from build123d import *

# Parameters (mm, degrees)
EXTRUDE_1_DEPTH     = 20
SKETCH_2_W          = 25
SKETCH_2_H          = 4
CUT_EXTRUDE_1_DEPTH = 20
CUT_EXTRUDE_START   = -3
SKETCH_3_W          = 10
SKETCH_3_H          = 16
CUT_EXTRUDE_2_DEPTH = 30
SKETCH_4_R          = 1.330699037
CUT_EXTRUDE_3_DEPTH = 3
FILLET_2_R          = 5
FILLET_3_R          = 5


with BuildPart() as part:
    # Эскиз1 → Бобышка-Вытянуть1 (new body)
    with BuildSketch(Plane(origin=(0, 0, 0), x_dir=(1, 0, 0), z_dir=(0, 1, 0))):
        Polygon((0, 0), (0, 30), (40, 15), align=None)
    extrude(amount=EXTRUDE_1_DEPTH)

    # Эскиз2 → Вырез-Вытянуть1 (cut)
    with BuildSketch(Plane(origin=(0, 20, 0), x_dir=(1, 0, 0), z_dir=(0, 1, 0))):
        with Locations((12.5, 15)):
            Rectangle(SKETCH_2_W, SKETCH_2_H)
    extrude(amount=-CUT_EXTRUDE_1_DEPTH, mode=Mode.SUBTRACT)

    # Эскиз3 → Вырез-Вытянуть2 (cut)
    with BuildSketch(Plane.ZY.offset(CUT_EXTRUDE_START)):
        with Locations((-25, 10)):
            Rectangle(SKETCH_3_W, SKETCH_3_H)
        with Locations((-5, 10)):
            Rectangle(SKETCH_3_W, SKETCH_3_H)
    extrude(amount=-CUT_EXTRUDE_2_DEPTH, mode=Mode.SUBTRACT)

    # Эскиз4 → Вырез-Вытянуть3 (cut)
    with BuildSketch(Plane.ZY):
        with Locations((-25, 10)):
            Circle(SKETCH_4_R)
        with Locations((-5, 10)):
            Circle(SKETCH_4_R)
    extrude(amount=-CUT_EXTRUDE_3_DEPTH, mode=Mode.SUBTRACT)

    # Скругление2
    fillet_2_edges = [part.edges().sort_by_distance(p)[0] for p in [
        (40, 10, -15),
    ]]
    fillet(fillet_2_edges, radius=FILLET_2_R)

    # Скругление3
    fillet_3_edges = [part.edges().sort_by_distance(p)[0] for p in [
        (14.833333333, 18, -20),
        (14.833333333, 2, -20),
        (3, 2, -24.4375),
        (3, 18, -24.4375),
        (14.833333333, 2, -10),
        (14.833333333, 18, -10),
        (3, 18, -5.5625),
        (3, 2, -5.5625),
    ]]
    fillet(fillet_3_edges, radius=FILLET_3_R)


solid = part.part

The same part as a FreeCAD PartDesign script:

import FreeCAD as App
import Part
import Sketcher


def edges_at(feature, points):
    """Names of the edges that pass closest to the given points."""
    edges = feature.Shape.Edges
    near = lambda p: min(range(len(edges)), key=lambda i: edges[i].distToShape(Part.Vertex(*p))[0])
    return sorted({f"Edge{near(p) + 1}" for p in points})


def add_polygon(sketch, points):
    """Adds a closed chain of lines whose ends are joined by coincident constraints."""
    first, n = sketch.GeometryCount, len(points)
    for a, b in zip(points, points[1:] + points[:1]):
        sketch.addGeometry(Part.LineSegment(App.Vector(*a, 0), App.Vector(*b, 0)), False)
    for i in range(n):
        sketch.addConstraint(Sketcher.Constraint("Coincident", first + i, 2, first + (i + 1) % n, 1))

doc = App.newDocument("Part")
params = doc.addObject("Spreadsheet::Sheet", "Params")
for row, (alias, value) in enumerate([
    ("sketch1_height", "30 mm"),
    ("pad1_length", "20 mm"),
    ("sketch2_width", "25 mm"),
    ("sketch2_height", "4 mm"),
    ("pocket1_length", "20 mm"),
    ("sketch3_width", "16 mm"),
    ("sketch3_height", "10 mm"),
    ("pocket2_length", "30 mm"),
    ("pocket3_length", "3 mm"),
    ("fillet_radius", "5 mm"),
    ("fillet2_radius", "5 mm"),
], start=1):
    params.set(f"A{row}", alias)
    params.set(f"B{row}", "=" + value)
    params.setAlias(f"B{row}", alias)

body = doc.addObject("PartDesign::Body", "Body")

sketch1 = body.newObject("Sketcher::SketchObject", "Sketch")
sketch1.AttachmentSupport = (doc.getObject("XZ_Plane"), [""])
sketch1.MapMode = "FlatFace"
add_polygon(sketch1, [(0, -30), (0, 0), (40, -15)])
sketch1.addConstraint([
    Sketcher.Constraint("Vertical", 0),
    Sketcher.Constraint("Coincident", 0, 2, -1, 1),
    Sketcher.Constraint("Equal", 1, 2),
    Sketcher.Constraint("DistanceY", 0, 1, 0, 2, 30.0),
    Sketcher.Constraint("DistanceX", -1, 1, 1, 2, 40.0),
])
sketch1.setExpression("Constraints[6]", "Params.sketch1_height")
pad1 = body.newObject("PartDesign::Pad", "Pad")
pad1.Profile = sketch1
pad1.setExpression("Length", "Params.pad1_length")
pad1.Reversed = True

sketch2 = body.newObject("Sketcher::SketchObject", "Sketch001")
sketch2.AttachmentSupport = (doc.getObject("XZ_Plane"), [""])
sketch2.MapMode = "FlatFace"
sketch2.AttachmentOffset = App.Placement(App.Vector(0, 0, -20), App.Rotation())
add_polygon(sketch2, [(0, -17), (0, -13), (25, -13), (25, -17)])
sketch2.addConstraint([
    Sketcher.Constraint("Vertical", 0),
    Sketcher.Constraint("Horizontal", 1),
    Sketcher.Constraint("Vertical", 2),
    Sketcher.Constraint("Horizontal", 3),
    Sketcher.Constraint("PointOnObject", 0, 2, -2),
    Sketcher.Constraint("DistanceX", 1, 1, 1, 2, 25.0),
    Sketcher.Constraint("DistanceY", 0, 1, 0, 2, 4.0),
    Sketcher.Constraint("DistanceY", 0, 2, -1, 1, 13.0),
])
sketch2.setExpression("Constraints[9]", "Params.sketch2_width")
sketch2.setExpression("Constraints[10]", "Params.sketch2_height")
pocket1 = body.newObject("PartDesign::Pocket", "Pocket")
pocket1.Profile = sketch2
pocket1.setExpression("Length", "Params.pocket1_length")
pocket1.Reversed = True

sketch3 = body.newObject("Sketcher::SketchObject", "Sketch002")
sketch3.AttachmentSupport = (doc.getObject("YZ_Plane"), [""])
sketch3.MapMode = "FlatFace"
sketch3.AttachmentOffset = App.Placement(App.Vector(0, 0, 3), App.Rotation())
add_polygon(sketch3, [(18, -30), (2, -30), (2, -20), (18, -20)])
add_polygon(sketch3, [(18, -10), (2, -10), (2, 0), (18, 0)])
sketch3.addConstraint([
    Sketcher.Constraint("Horizontal", 0),
    Sketcher.Constraint("Vertical", 1),
    Sketcher.Constraint("Horizontal", 2),
    Sketcher.Constraint("Vertical", 3),
    Sketcher.Constraint("Horizontal", 4),
    Sketcher.Constraint("Vertical", 5),
    Sketcher.Constraint("Horizontal", 6),
    Sketcher.Constraint("Vertical", 7),
    Sketcher.Constraint("PointOnObject", 5, 2, -1),
    Sketcher.Constraint("Vertical", 1, 2, 4, 2),
    Sketcher.Constraint("Vertical", 3, 2, 6, 2),
    Sketcher.Constraint("Equal", 3, 5),
    Sketcher.Constraint("DistanceX", 0, 2, 0, 1, 16.0),
    Sketcher.Constraint("DistanceY", 1, 1, 1, 2, 10.0),
    Sketcher.Constraint("DistanceX", -1, 1, 0, 2, 2.0),
    Sketcher.Constraint("DistanceY", 0, 2, -1, 1, 30.0),
])
sketch3.setExpression("Constraints[20]", "Params.sketch3_width")
sketch3.setExpression("Constraints[21]", "Params.sketch3_height")
pocket2 = body.newObject("PartDesign::Pocket", "Pocket001")
pocket2.Profile = sketch3
pocket2.setExpression("Length", "Params.pocket2_length")
pocket2.Reversed = True

sketch4 = body.newObject("Sketcher::SketchObject", "Sketch003")
sketch4.AttachmentSupport = (doc.getObject("YZ_Plane"), [""])
sketch4.MapMode = "FlatFace"
sketch4.addGeometry([
    Part.Circle(App.Vector(10, -25, 0), App.Vector(0, 0, 1), 1.3),
    Part.Circle(App.Vector(10, -5, 0), App.Vector(0, 0, 1), 1.3),
], False)
sketch4.addConstraint([
    Sketcher.Constraint("Equal", 0, 1),
    Sketcher.Constraint("Vertical", 0, 3, 1, 3),
    Sketcher.Constraint("DistanceX", -1, 1, 0, 3, 10.0),
    Sketcher.Constraint("DistanceY", 0, 3, -1, 1, 25.0),
    Sketcher.Constraint("DistanceY", 1, 3, -1, 1, 5.0),
    Sketcher.Constraint("Diameter", 0, 2.661398),
])
pocket3 = body.newObject("PartDesign::Pocket", "Pocket002")
pocket3.Profile = sketch4
pocket3.setExpression("Length", "Params.pocket3_length")
pocket3.Reversed = True
doc.recompute()

fillet = body.newObject("PartDesign::Fillet", "Fillet")
fillet.Base = (pocket3, edges_at(pocket3, [(40, 10, -15)]))
fillet.setExpression("Radius", "Params.fillet_radius")
doc.recompute()

fillet2 = body.newObject("PartDesign::Fillet", "Fillet001")
fillet2.Base = (fillet, edges_at(fillet, [
    (14.833, 18, -20),
    (14.833, 2, -20),
    (3, 2, -24.438),
    (3, 18, -24.438),
    (14.833, 2, -10),
    (14.833, 18, -10),
    (3, 18, -5.562),
    (3, 2, -5.562),
]))
fillet2.setExpression("Radius", "Params.fillet2_radius")

doc.recompute()
